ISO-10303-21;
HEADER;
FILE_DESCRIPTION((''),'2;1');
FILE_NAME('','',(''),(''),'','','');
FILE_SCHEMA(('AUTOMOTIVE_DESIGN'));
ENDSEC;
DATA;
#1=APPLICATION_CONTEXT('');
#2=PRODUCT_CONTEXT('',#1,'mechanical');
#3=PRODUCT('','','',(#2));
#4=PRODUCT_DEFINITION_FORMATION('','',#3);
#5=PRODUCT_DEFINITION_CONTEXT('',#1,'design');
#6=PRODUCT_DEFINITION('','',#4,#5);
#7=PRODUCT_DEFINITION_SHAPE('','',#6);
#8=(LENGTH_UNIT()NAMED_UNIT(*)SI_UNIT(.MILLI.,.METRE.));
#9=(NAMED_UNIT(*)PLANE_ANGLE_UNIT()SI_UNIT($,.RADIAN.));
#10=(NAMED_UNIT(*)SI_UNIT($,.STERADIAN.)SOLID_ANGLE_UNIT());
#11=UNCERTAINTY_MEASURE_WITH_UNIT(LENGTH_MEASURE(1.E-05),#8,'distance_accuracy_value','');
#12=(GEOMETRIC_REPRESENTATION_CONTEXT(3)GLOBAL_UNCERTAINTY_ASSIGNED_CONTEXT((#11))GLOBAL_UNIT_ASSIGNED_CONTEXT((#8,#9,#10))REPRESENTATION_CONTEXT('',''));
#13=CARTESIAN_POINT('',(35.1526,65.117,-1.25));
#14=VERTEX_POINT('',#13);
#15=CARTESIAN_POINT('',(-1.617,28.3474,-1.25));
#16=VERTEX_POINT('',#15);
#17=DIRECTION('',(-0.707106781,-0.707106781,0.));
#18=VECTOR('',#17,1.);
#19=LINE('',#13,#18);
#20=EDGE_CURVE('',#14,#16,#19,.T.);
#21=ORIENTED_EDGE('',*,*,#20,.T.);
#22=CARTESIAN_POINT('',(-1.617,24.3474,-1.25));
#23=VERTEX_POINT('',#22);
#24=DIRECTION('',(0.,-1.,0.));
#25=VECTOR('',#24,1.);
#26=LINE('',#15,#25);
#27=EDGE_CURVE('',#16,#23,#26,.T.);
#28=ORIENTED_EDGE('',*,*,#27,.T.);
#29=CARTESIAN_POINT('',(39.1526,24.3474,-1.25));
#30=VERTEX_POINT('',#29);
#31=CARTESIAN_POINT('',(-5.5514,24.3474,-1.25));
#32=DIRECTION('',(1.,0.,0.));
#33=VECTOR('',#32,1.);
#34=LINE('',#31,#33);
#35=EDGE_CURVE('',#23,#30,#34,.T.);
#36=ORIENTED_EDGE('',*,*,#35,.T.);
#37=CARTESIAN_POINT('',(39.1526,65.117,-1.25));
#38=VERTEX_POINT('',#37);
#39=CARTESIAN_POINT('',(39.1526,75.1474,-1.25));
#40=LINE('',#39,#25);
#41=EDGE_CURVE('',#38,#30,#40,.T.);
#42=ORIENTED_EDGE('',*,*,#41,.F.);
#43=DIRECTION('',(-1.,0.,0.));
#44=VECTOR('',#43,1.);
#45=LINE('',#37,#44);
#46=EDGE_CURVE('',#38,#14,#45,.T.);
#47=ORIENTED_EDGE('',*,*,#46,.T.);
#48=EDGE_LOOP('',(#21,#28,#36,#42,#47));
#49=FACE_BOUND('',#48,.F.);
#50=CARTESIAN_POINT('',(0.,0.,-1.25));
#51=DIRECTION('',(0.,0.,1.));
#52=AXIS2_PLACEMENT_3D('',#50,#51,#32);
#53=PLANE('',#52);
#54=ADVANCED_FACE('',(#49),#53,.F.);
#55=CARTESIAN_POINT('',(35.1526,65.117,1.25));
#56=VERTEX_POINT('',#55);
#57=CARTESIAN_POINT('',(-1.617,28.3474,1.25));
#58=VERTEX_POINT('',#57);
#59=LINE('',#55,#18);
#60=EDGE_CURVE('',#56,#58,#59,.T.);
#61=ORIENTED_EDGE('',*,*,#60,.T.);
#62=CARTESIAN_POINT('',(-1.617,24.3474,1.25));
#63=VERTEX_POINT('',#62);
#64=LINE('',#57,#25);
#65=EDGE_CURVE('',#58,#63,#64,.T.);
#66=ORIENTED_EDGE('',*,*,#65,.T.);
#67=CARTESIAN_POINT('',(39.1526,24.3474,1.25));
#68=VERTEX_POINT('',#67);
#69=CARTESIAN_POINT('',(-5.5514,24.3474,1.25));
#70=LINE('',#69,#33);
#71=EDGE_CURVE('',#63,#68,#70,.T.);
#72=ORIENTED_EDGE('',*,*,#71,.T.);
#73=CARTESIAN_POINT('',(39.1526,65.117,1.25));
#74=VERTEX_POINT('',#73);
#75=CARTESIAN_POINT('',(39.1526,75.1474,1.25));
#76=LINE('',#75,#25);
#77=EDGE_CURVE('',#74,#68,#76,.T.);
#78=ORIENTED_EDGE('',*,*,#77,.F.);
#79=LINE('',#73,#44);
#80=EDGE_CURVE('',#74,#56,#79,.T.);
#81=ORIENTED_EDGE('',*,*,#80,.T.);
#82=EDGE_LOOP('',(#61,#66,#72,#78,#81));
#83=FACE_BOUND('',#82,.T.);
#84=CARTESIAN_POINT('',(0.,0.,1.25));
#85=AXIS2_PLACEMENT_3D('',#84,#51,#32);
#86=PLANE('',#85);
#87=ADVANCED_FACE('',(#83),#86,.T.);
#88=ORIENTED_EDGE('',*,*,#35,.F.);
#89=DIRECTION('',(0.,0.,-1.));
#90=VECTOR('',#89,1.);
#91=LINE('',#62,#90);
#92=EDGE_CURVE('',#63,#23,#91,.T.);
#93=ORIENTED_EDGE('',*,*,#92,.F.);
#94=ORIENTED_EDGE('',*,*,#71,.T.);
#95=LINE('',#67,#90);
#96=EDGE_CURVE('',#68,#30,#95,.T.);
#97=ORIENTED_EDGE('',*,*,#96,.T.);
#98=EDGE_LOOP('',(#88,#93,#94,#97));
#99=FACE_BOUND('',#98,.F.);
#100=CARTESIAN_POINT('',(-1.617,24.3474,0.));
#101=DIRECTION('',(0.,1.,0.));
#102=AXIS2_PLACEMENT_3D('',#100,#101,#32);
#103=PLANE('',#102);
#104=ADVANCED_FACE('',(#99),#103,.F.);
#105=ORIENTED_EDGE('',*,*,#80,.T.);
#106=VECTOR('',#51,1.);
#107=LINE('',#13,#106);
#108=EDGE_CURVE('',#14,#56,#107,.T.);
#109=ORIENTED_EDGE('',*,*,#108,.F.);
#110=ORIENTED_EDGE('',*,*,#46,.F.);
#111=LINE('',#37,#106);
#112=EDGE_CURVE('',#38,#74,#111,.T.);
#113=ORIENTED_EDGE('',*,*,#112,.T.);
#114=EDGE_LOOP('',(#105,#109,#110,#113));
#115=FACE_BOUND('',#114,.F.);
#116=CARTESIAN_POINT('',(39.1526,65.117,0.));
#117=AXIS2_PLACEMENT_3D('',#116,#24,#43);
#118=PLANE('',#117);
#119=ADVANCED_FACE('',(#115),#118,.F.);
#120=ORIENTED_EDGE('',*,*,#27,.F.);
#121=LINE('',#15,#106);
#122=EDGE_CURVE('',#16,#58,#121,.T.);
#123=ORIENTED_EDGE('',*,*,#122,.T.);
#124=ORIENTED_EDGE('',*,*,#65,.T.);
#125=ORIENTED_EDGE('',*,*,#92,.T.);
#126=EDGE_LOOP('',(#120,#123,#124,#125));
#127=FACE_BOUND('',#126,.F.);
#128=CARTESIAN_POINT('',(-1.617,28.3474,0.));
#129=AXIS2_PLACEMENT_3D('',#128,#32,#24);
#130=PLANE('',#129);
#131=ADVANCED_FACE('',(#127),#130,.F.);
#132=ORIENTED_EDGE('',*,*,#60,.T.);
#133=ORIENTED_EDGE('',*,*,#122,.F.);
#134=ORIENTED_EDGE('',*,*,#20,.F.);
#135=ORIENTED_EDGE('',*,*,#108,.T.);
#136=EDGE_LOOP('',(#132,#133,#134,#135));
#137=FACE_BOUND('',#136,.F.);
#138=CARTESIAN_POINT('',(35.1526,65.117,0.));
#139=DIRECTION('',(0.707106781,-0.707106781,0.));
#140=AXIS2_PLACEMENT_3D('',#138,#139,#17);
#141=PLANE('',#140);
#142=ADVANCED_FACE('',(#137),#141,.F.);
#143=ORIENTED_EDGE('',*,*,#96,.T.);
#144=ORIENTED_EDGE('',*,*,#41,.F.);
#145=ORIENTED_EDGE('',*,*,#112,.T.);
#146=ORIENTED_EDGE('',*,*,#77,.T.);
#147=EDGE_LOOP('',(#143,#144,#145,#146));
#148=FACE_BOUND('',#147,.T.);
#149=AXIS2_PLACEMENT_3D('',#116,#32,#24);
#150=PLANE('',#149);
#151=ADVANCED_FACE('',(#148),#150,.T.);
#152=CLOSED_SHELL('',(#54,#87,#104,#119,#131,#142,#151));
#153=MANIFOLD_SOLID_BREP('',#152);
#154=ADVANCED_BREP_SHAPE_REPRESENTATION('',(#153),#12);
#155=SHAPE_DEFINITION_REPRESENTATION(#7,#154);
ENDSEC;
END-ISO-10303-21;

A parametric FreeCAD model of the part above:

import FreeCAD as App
import Part
import Sketcher

doc = App.newDocument("Part")
body = doc.addObject("PartDesign::Body", "Body")

sketch1 = doc.addObject("Sketcher::SketchObject", "Sketch")
body.addObject(sketch1)
sketch1.AttachmentSupport = (doc.XY_Plane, [""])
sketch1.MapMode = "FlatFace"
sketch1.addGeometry([
    Part.LineSegment(App.Vector(39.2, 24.3, 0), App.Vector(39.2, 65.1, 0)),
    Part.LineSegment(App.Vector(39.2, 65.1, 0), App.Vector(35.2, 65.1, 0)),
    Part.LineSegment(App.Vector(35.2, 65.1, 0), App.Vector(-1.6, 28.3, 0)),
    Part.LineSegment(App.Vector(-1.6, 28.3, 0), App.Vector(-1.6, 24.3, 0)),
    Part.LineSegment(App.Vector(-1.6, 24.3, 0), App.Vector(39.2, 24.3, 0)),
], False)
sketch1.addConstraint([
    Sketcher.Constraint("Coincident", 0, 2, 1, 1),
    Sketcher.Constraint("Coincident", 1, 2, 2, 1),
    Sketcher.Constraint("Coincident", 2, 2, 3, 1),
    Sketcher.Constraint("Coincident", 3, 2, 4, 1),
    Sketcher.Constraint("Coincident", 4, 2, 0, 1),
    Sketcher.Constraint("Vertical", 0),
    Sketcher.Constraint("Horizontal", 1),
    Sketcher.Constraint("Vertical", 3),
    Sketcher.Constraint("Horizontal", 4),
    Sketcher.Constraint("Equal", 4, 0),
    Sketcher.Constraint("Equal", 1, 3),
    Sketcher.Constraint("DistanceX", 1, 2, 1, 1, 4.0),
    Sketcher.Constraint("Distance", 2, 52.0),
    Sketcher.Constraint("DistanceY", -1, 1, 0, 2, 65.117),
    Sketcher.Constraint("DistanceX", 2, 2, -1, 1, 1.617),
])
pad1 = doc.addObject("PartDesign::Pad", "Pad")
body.addObject(pad1)
pad1.Profile = sketch1
pad1.Length = 2.5
pad1.Midplane = True

doc.recompute()
